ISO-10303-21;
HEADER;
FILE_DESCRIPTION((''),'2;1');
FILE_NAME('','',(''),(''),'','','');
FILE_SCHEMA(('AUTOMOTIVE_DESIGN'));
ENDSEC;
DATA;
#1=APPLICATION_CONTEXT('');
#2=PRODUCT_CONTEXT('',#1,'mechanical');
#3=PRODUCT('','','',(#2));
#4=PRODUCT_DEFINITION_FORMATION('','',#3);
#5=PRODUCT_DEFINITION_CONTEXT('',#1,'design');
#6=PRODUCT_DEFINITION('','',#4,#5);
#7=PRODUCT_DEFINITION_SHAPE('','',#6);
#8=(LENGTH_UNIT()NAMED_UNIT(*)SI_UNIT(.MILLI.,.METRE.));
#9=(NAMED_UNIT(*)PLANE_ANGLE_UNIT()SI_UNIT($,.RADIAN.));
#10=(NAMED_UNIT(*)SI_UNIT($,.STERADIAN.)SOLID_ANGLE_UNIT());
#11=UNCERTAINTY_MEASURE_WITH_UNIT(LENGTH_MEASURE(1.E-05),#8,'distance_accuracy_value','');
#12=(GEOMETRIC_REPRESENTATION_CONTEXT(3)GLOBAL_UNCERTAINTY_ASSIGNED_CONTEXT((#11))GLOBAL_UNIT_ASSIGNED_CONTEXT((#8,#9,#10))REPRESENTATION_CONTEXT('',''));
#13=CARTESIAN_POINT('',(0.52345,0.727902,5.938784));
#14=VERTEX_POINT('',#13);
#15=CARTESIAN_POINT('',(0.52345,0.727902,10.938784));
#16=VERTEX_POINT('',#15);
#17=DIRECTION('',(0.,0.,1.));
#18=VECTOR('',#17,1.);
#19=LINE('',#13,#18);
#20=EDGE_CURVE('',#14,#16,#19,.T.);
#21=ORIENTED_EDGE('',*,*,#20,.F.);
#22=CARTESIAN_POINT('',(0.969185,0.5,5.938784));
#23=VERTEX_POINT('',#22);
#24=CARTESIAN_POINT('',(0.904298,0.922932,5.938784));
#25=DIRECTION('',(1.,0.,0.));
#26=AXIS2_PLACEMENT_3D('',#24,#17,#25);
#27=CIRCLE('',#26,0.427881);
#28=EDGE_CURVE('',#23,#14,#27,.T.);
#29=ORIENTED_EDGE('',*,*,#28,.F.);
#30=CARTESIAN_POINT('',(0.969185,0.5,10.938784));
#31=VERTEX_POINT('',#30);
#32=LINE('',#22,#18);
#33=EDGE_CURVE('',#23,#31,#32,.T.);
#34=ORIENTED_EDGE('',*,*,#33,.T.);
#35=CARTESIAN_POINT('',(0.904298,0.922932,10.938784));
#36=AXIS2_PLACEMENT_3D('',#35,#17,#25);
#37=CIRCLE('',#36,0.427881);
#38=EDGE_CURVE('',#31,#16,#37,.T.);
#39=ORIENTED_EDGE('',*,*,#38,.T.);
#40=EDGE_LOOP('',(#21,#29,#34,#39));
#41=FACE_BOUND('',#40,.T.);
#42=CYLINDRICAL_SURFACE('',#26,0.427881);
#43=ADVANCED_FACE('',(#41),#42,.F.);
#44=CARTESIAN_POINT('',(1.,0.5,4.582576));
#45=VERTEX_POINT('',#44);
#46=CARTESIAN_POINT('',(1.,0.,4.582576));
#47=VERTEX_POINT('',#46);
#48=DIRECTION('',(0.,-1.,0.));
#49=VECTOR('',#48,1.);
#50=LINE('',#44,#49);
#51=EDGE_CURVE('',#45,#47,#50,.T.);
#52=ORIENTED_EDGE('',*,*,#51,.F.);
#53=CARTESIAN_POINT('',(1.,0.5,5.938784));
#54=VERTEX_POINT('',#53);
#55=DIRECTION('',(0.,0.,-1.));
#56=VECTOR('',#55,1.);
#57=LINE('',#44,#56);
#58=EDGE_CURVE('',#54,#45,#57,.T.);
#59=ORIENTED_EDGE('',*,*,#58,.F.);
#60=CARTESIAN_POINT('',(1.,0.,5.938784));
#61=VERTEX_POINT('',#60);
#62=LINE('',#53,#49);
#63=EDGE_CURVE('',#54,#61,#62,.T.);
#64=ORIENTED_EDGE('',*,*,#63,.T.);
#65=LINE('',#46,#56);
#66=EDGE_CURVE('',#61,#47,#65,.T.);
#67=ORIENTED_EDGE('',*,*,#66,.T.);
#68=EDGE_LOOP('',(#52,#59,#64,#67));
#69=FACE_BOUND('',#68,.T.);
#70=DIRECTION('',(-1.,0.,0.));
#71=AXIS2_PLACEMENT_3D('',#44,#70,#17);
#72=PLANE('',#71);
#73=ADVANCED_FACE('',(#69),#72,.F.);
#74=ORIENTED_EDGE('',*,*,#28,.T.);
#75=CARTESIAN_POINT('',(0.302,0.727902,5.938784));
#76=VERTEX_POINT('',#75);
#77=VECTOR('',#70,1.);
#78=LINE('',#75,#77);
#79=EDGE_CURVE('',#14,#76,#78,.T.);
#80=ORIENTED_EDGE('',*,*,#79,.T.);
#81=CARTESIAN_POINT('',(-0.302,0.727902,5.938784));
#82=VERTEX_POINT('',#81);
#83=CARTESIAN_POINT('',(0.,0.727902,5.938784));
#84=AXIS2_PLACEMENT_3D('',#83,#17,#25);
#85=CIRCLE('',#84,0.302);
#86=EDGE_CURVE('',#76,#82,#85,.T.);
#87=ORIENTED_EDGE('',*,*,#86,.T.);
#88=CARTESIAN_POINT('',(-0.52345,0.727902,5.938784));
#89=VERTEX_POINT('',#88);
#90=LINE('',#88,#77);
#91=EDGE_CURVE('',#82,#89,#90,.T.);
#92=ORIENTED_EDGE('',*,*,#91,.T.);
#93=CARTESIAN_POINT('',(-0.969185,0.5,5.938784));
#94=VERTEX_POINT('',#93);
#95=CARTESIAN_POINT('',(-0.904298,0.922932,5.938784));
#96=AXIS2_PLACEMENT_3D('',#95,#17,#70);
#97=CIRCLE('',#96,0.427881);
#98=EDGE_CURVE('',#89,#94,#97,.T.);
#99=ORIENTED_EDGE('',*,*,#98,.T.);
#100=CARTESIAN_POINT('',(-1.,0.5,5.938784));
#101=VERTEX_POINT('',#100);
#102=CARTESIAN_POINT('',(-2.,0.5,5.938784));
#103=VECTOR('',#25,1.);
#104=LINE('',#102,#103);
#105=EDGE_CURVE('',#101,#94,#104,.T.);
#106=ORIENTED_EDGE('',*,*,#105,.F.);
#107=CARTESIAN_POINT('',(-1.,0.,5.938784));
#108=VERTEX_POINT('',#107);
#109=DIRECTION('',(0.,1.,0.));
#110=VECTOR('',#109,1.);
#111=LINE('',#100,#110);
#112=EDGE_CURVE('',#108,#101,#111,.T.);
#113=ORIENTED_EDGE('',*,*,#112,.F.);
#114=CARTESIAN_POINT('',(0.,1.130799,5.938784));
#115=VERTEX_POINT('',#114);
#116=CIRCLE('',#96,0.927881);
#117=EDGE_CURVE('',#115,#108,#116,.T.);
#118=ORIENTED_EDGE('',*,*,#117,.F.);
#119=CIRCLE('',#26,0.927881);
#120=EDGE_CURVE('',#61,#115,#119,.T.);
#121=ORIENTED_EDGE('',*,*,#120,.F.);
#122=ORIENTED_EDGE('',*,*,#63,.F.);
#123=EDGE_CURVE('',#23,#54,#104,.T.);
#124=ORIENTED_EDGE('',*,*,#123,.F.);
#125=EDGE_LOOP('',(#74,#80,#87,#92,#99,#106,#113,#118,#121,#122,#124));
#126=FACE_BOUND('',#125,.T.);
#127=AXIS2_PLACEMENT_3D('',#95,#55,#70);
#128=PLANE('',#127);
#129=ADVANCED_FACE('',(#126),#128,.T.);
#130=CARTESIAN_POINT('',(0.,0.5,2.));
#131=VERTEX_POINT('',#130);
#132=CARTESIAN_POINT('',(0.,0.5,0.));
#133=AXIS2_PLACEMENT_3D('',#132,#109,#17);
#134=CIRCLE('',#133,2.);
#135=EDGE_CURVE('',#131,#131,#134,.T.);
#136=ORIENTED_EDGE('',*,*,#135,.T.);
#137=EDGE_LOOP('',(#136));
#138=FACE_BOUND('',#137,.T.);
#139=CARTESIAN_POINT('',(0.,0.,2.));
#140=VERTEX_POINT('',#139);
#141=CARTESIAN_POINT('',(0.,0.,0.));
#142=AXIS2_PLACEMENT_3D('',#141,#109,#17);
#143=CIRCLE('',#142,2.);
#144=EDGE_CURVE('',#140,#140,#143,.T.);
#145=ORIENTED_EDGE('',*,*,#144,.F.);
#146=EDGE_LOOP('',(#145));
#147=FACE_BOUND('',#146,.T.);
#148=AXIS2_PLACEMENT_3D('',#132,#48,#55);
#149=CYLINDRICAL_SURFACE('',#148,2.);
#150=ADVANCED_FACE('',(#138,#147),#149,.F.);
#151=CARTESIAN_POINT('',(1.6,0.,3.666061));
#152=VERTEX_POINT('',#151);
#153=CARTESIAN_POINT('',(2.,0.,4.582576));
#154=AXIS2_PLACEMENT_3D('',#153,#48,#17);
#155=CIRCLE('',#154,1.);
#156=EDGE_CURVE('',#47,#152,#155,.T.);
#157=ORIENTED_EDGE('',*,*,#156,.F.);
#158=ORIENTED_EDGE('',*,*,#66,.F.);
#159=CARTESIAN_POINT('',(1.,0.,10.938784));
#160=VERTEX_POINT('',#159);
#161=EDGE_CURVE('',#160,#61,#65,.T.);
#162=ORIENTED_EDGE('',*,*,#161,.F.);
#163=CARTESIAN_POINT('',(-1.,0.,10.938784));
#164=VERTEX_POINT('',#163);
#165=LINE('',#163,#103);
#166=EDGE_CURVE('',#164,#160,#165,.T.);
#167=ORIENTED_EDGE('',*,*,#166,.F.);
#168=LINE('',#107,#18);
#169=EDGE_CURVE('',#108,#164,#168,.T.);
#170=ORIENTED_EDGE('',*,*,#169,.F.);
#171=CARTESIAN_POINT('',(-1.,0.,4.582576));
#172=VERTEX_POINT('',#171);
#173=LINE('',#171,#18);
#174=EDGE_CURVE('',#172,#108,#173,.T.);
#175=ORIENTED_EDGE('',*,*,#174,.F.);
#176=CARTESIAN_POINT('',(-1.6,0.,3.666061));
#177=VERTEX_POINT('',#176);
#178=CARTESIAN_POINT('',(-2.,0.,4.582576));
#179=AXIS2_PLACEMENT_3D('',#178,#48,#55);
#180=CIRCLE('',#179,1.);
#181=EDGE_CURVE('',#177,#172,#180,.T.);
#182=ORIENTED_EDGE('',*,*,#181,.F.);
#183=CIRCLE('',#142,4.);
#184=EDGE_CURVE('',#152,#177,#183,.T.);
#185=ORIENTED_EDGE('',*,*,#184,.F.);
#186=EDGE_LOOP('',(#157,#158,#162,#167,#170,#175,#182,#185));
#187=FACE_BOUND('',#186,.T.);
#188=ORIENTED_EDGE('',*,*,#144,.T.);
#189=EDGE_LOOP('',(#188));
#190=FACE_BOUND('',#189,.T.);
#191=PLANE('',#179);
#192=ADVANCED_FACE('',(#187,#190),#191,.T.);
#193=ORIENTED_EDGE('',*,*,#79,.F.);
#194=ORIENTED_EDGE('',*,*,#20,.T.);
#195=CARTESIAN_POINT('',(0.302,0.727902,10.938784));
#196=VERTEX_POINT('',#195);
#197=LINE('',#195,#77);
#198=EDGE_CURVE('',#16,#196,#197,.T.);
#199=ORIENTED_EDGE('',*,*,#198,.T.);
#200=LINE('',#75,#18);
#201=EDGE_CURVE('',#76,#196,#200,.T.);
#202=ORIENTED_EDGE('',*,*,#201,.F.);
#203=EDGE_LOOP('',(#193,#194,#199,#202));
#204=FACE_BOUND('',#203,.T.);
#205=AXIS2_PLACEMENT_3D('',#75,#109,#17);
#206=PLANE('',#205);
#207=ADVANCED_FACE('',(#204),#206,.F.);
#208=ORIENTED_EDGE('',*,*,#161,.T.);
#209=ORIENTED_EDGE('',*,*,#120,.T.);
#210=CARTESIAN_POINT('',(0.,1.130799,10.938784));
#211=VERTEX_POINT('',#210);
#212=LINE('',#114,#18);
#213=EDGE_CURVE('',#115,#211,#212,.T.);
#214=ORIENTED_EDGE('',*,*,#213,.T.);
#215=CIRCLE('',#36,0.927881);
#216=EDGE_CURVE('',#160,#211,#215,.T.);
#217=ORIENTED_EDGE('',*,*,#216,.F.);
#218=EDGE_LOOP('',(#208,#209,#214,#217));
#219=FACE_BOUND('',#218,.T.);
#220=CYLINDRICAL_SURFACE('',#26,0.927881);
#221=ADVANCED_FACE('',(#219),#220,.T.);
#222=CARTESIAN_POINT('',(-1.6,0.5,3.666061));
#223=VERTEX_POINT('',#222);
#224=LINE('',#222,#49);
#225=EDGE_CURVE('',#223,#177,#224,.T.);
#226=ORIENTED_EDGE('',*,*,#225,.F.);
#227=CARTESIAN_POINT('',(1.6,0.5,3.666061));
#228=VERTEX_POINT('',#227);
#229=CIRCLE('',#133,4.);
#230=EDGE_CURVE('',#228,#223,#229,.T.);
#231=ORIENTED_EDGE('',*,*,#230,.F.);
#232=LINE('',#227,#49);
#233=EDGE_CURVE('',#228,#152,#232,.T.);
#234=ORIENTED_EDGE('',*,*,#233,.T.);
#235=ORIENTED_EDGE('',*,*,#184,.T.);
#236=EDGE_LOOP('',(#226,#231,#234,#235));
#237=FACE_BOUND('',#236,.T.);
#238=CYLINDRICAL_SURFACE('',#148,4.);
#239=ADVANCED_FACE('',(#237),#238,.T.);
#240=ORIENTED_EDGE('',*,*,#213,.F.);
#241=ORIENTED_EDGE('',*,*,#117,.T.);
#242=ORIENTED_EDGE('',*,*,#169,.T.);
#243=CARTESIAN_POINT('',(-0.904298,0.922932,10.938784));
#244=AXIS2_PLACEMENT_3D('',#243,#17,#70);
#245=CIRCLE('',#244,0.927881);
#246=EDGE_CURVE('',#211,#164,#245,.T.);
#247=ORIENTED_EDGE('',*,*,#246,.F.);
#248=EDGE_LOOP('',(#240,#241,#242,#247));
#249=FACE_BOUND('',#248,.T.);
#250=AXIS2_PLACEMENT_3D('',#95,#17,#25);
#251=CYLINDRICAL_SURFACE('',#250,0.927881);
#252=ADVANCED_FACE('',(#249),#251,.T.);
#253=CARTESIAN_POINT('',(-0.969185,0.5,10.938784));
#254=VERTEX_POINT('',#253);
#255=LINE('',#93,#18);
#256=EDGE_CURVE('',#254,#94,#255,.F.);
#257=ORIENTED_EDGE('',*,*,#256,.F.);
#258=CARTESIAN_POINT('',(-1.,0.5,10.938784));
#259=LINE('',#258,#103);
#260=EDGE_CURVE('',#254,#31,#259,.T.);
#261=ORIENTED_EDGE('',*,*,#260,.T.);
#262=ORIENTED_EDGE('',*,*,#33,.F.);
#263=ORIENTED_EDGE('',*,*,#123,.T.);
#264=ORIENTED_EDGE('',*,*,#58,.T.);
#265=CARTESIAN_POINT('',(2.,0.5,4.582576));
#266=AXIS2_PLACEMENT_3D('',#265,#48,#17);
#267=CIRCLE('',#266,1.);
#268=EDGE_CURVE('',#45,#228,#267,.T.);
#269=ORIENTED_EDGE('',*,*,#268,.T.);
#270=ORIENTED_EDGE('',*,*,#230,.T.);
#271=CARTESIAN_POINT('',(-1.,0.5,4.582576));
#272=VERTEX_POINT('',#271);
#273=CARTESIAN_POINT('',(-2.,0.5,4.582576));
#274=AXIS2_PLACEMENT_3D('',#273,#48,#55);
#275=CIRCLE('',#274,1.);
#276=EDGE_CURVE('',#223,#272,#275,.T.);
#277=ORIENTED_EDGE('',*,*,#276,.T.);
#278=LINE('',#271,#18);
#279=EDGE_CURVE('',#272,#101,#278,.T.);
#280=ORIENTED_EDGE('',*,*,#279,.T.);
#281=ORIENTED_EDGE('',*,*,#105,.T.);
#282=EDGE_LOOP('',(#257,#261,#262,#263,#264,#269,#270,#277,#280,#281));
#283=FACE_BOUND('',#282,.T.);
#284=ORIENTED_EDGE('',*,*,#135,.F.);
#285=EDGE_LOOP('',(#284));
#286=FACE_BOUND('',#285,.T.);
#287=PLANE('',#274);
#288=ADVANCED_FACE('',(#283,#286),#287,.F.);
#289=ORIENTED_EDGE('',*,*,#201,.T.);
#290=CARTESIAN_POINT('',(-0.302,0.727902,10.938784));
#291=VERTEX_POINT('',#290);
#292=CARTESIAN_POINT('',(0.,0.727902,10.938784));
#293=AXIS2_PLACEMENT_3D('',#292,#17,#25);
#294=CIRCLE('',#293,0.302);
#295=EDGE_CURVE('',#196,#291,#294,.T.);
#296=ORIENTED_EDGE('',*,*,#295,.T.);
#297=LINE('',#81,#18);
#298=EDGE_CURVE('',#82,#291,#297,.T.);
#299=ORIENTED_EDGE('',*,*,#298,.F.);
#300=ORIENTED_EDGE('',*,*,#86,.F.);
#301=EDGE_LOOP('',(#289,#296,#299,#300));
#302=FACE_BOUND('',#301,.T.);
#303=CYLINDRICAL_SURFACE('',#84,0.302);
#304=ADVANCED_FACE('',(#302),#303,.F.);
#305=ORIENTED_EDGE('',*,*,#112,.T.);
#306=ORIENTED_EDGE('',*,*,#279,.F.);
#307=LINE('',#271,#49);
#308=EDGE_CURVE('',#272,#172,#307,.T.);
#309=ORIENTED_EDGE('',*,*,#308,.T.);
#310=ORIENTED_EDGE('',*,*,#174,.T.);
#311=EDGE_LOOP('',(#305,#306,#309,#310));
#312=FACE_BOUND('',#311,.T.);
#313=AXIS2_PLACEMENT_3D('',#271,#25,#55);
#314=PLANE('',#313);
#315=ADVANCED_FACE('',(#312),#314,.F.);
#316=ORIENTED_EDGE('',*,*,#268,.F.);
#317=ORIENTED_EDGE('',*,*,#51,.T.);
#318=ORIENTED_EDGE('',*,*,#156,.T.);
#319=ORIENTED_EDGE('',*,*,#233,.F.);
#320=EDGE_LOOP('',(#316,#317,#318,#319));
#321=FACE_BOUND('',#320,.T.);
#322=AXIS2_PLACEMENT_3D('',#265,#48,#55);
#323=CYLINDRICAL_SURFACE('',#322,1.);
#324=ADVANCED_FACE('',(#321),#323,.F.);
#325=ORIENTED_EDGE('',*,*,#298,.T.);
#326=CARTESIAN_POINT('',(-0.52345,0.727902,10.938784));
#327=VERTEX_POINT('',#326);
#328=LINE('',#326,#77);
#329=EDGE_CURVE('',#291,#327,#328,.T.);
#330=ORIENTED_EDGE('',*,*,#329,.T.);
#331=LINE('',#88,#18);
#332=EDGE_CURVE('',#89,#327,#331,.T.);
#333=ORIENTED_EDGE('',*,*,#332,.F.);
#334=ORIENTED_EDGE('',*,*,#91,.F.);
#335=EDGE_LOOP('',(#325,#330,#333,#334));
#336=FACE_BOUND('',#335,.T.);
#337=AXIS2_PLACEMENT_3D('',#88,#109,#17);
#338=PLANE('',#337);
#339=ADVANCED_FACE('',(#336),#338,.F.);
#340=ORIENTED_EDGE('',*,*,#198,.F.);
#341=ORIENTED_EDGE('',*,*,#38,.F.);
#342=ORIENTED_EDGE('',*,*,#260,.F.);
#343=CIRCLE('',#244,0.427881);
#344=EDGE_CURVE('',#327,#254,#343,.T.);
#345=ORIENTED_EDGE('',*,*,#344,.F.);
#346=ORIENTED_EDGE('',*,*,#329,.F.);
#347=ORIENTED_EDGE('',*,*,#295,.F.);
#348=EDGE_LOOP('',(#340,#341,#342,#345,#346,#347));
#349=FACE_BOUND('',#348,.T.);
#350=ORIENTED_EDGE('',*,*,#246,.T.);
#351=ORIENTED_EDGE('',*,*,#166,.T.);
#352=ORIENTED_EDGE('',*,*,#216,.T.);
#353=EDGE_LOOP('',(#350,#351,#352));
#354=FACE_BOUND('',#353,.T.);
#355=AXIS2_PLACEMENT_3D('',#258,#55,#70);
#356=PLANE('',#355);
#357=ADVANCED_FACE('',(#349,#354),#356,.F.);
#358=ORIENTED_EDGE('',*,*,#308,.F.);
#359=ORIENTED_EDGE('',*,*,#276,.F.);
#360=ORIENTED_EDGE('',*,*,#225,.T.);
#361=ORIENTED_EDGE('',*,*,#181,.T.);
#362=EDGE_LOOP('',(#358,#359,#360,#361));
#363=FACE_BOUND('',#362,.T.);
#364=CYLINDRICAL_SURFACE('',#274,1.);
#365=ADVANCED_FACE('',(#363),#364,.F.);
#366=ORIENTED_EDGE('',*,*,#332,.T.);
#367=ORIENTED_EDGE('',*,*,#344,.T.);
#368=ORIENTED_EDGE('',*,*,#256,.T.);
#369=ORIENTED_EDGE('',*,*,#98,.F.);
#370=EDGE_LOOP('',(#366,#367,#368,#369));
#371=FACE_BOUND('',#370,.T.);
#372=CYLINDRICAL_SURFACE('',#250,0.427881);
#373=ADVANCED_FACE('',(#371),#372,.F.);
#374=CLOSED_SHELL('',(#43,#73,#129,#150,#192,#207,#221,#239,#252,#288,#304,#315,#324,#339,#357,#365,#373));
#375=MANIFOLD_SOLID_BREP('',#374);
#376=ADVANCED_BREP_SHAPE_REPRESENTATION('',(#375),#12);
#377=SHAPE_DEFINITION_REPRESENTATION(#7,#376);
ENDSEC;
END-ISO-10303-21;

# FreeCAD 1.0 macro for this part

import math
import FreeCAD as App
import Part
import Sketcher
from FreeCAD import Vector

doc = App.newDocument("Part")
body = doc.addObject("PartDesign::Body", "Body")

sketch1 = body.newObject("Sketcher::SketchObject", "Sketch")
sketch1.AttachmentSupport = (doc.getObject("XZ_Plane"), [""])
sketch1.MapMode = "FlatFace"
sketch1.addGeometry(Part.LineSegment(Vector(-1, 10.938784, 0), Vector(1, 10.938784, 0)), False)
sketch1.addGeometry(Part.LineSegment(Vector(1, 10.938784, 0), Vector(1, 4.582576, 0)), False)
sketch1.addGeometry(Part.ArcOfCircle(Part.Circle(Vector(2, 4.582576, 0), Vector(0, 0, 1), 1), math.radians(180), math.radians(246.421822)), False)
sketch1.addGeometry(Part.ArcOfCircle(Part.Circle(Vector(0, 0, 0), Vector(0, 0, 1), 4), math.radians(113.578178), math.radians(426.421822)), False)
sketch1.addGeometry(Part.ArcOfCircle(Part.Circle(Vector(-2, 4.582576, 0), Vector(0, 0, 1), 1), math.radians(-66.421822), math.radians(0)), False)
sketch1.addGeometry(Part.LineSegment(Vector(-1, 4.582576, 0), Vector(-1, 10.938784, 0)), False)
sketch1.addGeometry(Part.Circle(Vector(0, 0, 0), Vector(0, 0, 1), 2), False)
sketch1.addConstraint(Sketcher.Constraint("Coincident", 0, 2, 1, 1))
sketch1.addConstraint(Sketcher.Constraint("Tangent", 1, 2, 2, 1))
sketch1.addConstraint(Sketcher.Constraint("Tangent", 2, 2, 3, 2))
sketch1.addConstraint(Sketcher.Constraint("Tangent", 3, 1, 4, 1))
sketch1.addConstraint(Sketcher.Constraint("Tangent", 4, 2, 5, 1))
sketch1.addConstraint(Sketcher.Constraint("Coincident", 5, 2, 0, 1))
sketch1.addConstraint(Sketcher.Constraint("Horizontal", 0))
sketch1.addConstraint(Sketcher.Constraint("Vertical", 1))
sketch1.addConstraint(Sketcher.Constraint("Vertical", 5))
sketch1.addConstraint(Sketcher.Constraint("Coincident", 3, 3, -1, 1))
sketch1.addConstraint(Sketcher.Constraint("Coincident", 6, 3, -1, 1))
sketch1.addConstraint(Sketcher.Constraint("Equal", 2, 4))
sketch1.addConstraint(Sketcher.Constraint("Horizontal", 2, 3, 4, 3))
sketch1.addConstraint(Sketcher.Constraint("Diameter", 6, 4.0))
sketch1.addConstraint(Sketcher.Constraint("Radius", 2, 1.0))
sketch1.addConstraint(Sketcher.Constraint("Radius", 3, 4.0))
sketch1.addConstraint(Sketcher.Constraint("DistanceX", 0, 1, 0, 2, 2.0))
sketch1.addConstraint(Sketcher.Constraint("DistanceY", 1, 2, 1, 1, 6.356209))
pad1 = body.newObject("PartDesign::Pad", "Pad")
pad1.Profile = sketch1
pad1.Length = 0.5
pad1.Reversed = True

sketch2 = body.newObject("Sketcher::SketchObject", "Sketch001")
sketch2.AttachmentSupport = (doc.getObject("XY_Plane"), [""])
sketch2.MapMode = "FlatFace"
sketch2.AttachmentOffset = App.Placement(Vector(0, 0, 10.938784), App.Rotation())
sketch2.addGeometry(Part.LineSegment(Vector(-1, 0, 0), Vector(1, 0, 0)), False)
sketch2.addGeometry(Part.ArcOfCircle(Part.Circle(Vector(0.904298, 0.922932, 0), Vector(0, 0, 1), 0.927881), math.radians(-84.079951), math.radians(167.054584)), False)
sketch2.addGeometry(Part.ArcOfCircle(Part.Circle(Vector(-0.904298, 0.922932, 0), Vector(0, 0, 1), 0.927881), math.radians(12.945416), math.radians(264.079951)), False)
sketch2.addGeometry(Part.LineSegment(Vector(-0.52345, 0.727902, 0), Vector(-0.302, 0.727902, 0)), False)
sketch2.addGeometry(Part.ArcOfCircle(Part.Circle(Vector(0, 0.727902, 0), Vector(0, 0, 1), 0.302), math.radians(0), math.radians(180)), False)
sketch2.addGeometry(Part.LineSegment(Vector(0.302, 0.727902, 0), Vector(0.52345, 0.727902, 0)), False)
sketch2.addGeometry(Part.ArcOfCircle(Part.Circle(Vector(0.904298, 0.922932, 0), Vector(0, 0, 1), 0.427881), math.radians(-84.079951), math.radians(207.11671)), False)
sketch2.addGeometry(Part.LineSegment(Vector(0.94843, 0.497333, 0), Vector(-0.94843, 0.497333, 0)), False)
sketch2.addGeometry(Part.ArcOfCircle(Part.Circle(Vector(-0.904298, 0.922932, 0), Vector(0, 0, 1), 0.427881), math.radians(-27.11671), math.radians(264.079951)), False)
sketch2.addConstraint(Sketcher.Constraint("Coincident", 0, 2, 1, 1))
sketch2.addConstraint(Sketcher.Constraint("Coincident", 1, 2, 2, 1))
sketch2.addConstraint(Sketcher.Constraint("Coincident", 2, 2, 0, 1))
sketch2.addConstraint(Sketcher.Constraint("Coincident", 3, 2, 4, 2))
sketch2.addConstraint(Sketcher.Constraint("Coincident", 4, 1, 5, 1))
sketch2.addConstraint(Sketcher.Constraint("Coincident", 5, 2, 6, 2))
sketch2.addConstraint(Sketcher.Constraint("Coincident", 6, 1, 7, 1))
sketch2.addConstraint(Sketcher.Constraint("Coincident", 7, 2, 8, 2))
sketch2.addConstraint(Sketcher.Constraint("Coincident", 8, 1, 3, 1))
sketch2.addConstraint(Sketcher.Constraint("Horizontal", 0))
sketch2.addConstraint(Sketcher.Constraint("Horizontal", 3))
sketch2.addConstraint(Sketcher.Constraint("Horizontal", 5))
sketch2.addConstraint(Sketcher.Constraint("Horizontal", 7))
sketch2.addConstraint(Sketcher.Constraint("Coincident", 6, 3, 1, 3))
sketch2.addConstraint(Sketcher.Constraint("Coincident", 8, 3, 2, 3))
sketch2.addConstraint(Sketcher.Constraint("Equal", 1, 2))
sketch2.addConstraint(Sketcher.Constraint("Equal", 6, 8))
sketch2.addConstraint(Sketcher.Constraint("Symmetric", 0, 2, 2, 2, -1, 1))
sketch2.addConstraint(Sketcher.Constraint("Symmetric", 3, 2, 4, 1, -2))
sketch2.addConstraint(Sketcher.Constraint("PointOnObject", 1, 2, -2))
sketch2.addConstraint(Sketcher.Constraint("Horizontal", 4, 3, 3, 2))
sketch2.addConstraint(Sketcher.Constraint("DistanceX", 0, 1, 0, 2, 2.0))
sketch2.addConstraint(Sketcher.Constraint("Radius", 4, 0.302))
sketch2.addConstraint(Sketcher.Constraint("Radius", 1, 0.927881))
sketch2.addConstraint(Sketcher.Constraint("Radius", 6, 0.427881))
sketch2.addConstraint(Sketcher.Constraint("DistanceX", 3, 1, 3, 2, 0.221449))
sketch2.addConstraint(Sketcher.Constraint("DistanceX", 7, 2, 7, 1, 1.896859))
sketch2.addConstraint(Sketcher.Constraint("DistanceY", -1, 1, 1, 2, 1.130799))
pad2 = body.newObject("PartDesign::Pad", "Pad001")
pad2.Profile = sketch2
pad2.Length = 5
pad2.Reversed = True

doc.recompute()
